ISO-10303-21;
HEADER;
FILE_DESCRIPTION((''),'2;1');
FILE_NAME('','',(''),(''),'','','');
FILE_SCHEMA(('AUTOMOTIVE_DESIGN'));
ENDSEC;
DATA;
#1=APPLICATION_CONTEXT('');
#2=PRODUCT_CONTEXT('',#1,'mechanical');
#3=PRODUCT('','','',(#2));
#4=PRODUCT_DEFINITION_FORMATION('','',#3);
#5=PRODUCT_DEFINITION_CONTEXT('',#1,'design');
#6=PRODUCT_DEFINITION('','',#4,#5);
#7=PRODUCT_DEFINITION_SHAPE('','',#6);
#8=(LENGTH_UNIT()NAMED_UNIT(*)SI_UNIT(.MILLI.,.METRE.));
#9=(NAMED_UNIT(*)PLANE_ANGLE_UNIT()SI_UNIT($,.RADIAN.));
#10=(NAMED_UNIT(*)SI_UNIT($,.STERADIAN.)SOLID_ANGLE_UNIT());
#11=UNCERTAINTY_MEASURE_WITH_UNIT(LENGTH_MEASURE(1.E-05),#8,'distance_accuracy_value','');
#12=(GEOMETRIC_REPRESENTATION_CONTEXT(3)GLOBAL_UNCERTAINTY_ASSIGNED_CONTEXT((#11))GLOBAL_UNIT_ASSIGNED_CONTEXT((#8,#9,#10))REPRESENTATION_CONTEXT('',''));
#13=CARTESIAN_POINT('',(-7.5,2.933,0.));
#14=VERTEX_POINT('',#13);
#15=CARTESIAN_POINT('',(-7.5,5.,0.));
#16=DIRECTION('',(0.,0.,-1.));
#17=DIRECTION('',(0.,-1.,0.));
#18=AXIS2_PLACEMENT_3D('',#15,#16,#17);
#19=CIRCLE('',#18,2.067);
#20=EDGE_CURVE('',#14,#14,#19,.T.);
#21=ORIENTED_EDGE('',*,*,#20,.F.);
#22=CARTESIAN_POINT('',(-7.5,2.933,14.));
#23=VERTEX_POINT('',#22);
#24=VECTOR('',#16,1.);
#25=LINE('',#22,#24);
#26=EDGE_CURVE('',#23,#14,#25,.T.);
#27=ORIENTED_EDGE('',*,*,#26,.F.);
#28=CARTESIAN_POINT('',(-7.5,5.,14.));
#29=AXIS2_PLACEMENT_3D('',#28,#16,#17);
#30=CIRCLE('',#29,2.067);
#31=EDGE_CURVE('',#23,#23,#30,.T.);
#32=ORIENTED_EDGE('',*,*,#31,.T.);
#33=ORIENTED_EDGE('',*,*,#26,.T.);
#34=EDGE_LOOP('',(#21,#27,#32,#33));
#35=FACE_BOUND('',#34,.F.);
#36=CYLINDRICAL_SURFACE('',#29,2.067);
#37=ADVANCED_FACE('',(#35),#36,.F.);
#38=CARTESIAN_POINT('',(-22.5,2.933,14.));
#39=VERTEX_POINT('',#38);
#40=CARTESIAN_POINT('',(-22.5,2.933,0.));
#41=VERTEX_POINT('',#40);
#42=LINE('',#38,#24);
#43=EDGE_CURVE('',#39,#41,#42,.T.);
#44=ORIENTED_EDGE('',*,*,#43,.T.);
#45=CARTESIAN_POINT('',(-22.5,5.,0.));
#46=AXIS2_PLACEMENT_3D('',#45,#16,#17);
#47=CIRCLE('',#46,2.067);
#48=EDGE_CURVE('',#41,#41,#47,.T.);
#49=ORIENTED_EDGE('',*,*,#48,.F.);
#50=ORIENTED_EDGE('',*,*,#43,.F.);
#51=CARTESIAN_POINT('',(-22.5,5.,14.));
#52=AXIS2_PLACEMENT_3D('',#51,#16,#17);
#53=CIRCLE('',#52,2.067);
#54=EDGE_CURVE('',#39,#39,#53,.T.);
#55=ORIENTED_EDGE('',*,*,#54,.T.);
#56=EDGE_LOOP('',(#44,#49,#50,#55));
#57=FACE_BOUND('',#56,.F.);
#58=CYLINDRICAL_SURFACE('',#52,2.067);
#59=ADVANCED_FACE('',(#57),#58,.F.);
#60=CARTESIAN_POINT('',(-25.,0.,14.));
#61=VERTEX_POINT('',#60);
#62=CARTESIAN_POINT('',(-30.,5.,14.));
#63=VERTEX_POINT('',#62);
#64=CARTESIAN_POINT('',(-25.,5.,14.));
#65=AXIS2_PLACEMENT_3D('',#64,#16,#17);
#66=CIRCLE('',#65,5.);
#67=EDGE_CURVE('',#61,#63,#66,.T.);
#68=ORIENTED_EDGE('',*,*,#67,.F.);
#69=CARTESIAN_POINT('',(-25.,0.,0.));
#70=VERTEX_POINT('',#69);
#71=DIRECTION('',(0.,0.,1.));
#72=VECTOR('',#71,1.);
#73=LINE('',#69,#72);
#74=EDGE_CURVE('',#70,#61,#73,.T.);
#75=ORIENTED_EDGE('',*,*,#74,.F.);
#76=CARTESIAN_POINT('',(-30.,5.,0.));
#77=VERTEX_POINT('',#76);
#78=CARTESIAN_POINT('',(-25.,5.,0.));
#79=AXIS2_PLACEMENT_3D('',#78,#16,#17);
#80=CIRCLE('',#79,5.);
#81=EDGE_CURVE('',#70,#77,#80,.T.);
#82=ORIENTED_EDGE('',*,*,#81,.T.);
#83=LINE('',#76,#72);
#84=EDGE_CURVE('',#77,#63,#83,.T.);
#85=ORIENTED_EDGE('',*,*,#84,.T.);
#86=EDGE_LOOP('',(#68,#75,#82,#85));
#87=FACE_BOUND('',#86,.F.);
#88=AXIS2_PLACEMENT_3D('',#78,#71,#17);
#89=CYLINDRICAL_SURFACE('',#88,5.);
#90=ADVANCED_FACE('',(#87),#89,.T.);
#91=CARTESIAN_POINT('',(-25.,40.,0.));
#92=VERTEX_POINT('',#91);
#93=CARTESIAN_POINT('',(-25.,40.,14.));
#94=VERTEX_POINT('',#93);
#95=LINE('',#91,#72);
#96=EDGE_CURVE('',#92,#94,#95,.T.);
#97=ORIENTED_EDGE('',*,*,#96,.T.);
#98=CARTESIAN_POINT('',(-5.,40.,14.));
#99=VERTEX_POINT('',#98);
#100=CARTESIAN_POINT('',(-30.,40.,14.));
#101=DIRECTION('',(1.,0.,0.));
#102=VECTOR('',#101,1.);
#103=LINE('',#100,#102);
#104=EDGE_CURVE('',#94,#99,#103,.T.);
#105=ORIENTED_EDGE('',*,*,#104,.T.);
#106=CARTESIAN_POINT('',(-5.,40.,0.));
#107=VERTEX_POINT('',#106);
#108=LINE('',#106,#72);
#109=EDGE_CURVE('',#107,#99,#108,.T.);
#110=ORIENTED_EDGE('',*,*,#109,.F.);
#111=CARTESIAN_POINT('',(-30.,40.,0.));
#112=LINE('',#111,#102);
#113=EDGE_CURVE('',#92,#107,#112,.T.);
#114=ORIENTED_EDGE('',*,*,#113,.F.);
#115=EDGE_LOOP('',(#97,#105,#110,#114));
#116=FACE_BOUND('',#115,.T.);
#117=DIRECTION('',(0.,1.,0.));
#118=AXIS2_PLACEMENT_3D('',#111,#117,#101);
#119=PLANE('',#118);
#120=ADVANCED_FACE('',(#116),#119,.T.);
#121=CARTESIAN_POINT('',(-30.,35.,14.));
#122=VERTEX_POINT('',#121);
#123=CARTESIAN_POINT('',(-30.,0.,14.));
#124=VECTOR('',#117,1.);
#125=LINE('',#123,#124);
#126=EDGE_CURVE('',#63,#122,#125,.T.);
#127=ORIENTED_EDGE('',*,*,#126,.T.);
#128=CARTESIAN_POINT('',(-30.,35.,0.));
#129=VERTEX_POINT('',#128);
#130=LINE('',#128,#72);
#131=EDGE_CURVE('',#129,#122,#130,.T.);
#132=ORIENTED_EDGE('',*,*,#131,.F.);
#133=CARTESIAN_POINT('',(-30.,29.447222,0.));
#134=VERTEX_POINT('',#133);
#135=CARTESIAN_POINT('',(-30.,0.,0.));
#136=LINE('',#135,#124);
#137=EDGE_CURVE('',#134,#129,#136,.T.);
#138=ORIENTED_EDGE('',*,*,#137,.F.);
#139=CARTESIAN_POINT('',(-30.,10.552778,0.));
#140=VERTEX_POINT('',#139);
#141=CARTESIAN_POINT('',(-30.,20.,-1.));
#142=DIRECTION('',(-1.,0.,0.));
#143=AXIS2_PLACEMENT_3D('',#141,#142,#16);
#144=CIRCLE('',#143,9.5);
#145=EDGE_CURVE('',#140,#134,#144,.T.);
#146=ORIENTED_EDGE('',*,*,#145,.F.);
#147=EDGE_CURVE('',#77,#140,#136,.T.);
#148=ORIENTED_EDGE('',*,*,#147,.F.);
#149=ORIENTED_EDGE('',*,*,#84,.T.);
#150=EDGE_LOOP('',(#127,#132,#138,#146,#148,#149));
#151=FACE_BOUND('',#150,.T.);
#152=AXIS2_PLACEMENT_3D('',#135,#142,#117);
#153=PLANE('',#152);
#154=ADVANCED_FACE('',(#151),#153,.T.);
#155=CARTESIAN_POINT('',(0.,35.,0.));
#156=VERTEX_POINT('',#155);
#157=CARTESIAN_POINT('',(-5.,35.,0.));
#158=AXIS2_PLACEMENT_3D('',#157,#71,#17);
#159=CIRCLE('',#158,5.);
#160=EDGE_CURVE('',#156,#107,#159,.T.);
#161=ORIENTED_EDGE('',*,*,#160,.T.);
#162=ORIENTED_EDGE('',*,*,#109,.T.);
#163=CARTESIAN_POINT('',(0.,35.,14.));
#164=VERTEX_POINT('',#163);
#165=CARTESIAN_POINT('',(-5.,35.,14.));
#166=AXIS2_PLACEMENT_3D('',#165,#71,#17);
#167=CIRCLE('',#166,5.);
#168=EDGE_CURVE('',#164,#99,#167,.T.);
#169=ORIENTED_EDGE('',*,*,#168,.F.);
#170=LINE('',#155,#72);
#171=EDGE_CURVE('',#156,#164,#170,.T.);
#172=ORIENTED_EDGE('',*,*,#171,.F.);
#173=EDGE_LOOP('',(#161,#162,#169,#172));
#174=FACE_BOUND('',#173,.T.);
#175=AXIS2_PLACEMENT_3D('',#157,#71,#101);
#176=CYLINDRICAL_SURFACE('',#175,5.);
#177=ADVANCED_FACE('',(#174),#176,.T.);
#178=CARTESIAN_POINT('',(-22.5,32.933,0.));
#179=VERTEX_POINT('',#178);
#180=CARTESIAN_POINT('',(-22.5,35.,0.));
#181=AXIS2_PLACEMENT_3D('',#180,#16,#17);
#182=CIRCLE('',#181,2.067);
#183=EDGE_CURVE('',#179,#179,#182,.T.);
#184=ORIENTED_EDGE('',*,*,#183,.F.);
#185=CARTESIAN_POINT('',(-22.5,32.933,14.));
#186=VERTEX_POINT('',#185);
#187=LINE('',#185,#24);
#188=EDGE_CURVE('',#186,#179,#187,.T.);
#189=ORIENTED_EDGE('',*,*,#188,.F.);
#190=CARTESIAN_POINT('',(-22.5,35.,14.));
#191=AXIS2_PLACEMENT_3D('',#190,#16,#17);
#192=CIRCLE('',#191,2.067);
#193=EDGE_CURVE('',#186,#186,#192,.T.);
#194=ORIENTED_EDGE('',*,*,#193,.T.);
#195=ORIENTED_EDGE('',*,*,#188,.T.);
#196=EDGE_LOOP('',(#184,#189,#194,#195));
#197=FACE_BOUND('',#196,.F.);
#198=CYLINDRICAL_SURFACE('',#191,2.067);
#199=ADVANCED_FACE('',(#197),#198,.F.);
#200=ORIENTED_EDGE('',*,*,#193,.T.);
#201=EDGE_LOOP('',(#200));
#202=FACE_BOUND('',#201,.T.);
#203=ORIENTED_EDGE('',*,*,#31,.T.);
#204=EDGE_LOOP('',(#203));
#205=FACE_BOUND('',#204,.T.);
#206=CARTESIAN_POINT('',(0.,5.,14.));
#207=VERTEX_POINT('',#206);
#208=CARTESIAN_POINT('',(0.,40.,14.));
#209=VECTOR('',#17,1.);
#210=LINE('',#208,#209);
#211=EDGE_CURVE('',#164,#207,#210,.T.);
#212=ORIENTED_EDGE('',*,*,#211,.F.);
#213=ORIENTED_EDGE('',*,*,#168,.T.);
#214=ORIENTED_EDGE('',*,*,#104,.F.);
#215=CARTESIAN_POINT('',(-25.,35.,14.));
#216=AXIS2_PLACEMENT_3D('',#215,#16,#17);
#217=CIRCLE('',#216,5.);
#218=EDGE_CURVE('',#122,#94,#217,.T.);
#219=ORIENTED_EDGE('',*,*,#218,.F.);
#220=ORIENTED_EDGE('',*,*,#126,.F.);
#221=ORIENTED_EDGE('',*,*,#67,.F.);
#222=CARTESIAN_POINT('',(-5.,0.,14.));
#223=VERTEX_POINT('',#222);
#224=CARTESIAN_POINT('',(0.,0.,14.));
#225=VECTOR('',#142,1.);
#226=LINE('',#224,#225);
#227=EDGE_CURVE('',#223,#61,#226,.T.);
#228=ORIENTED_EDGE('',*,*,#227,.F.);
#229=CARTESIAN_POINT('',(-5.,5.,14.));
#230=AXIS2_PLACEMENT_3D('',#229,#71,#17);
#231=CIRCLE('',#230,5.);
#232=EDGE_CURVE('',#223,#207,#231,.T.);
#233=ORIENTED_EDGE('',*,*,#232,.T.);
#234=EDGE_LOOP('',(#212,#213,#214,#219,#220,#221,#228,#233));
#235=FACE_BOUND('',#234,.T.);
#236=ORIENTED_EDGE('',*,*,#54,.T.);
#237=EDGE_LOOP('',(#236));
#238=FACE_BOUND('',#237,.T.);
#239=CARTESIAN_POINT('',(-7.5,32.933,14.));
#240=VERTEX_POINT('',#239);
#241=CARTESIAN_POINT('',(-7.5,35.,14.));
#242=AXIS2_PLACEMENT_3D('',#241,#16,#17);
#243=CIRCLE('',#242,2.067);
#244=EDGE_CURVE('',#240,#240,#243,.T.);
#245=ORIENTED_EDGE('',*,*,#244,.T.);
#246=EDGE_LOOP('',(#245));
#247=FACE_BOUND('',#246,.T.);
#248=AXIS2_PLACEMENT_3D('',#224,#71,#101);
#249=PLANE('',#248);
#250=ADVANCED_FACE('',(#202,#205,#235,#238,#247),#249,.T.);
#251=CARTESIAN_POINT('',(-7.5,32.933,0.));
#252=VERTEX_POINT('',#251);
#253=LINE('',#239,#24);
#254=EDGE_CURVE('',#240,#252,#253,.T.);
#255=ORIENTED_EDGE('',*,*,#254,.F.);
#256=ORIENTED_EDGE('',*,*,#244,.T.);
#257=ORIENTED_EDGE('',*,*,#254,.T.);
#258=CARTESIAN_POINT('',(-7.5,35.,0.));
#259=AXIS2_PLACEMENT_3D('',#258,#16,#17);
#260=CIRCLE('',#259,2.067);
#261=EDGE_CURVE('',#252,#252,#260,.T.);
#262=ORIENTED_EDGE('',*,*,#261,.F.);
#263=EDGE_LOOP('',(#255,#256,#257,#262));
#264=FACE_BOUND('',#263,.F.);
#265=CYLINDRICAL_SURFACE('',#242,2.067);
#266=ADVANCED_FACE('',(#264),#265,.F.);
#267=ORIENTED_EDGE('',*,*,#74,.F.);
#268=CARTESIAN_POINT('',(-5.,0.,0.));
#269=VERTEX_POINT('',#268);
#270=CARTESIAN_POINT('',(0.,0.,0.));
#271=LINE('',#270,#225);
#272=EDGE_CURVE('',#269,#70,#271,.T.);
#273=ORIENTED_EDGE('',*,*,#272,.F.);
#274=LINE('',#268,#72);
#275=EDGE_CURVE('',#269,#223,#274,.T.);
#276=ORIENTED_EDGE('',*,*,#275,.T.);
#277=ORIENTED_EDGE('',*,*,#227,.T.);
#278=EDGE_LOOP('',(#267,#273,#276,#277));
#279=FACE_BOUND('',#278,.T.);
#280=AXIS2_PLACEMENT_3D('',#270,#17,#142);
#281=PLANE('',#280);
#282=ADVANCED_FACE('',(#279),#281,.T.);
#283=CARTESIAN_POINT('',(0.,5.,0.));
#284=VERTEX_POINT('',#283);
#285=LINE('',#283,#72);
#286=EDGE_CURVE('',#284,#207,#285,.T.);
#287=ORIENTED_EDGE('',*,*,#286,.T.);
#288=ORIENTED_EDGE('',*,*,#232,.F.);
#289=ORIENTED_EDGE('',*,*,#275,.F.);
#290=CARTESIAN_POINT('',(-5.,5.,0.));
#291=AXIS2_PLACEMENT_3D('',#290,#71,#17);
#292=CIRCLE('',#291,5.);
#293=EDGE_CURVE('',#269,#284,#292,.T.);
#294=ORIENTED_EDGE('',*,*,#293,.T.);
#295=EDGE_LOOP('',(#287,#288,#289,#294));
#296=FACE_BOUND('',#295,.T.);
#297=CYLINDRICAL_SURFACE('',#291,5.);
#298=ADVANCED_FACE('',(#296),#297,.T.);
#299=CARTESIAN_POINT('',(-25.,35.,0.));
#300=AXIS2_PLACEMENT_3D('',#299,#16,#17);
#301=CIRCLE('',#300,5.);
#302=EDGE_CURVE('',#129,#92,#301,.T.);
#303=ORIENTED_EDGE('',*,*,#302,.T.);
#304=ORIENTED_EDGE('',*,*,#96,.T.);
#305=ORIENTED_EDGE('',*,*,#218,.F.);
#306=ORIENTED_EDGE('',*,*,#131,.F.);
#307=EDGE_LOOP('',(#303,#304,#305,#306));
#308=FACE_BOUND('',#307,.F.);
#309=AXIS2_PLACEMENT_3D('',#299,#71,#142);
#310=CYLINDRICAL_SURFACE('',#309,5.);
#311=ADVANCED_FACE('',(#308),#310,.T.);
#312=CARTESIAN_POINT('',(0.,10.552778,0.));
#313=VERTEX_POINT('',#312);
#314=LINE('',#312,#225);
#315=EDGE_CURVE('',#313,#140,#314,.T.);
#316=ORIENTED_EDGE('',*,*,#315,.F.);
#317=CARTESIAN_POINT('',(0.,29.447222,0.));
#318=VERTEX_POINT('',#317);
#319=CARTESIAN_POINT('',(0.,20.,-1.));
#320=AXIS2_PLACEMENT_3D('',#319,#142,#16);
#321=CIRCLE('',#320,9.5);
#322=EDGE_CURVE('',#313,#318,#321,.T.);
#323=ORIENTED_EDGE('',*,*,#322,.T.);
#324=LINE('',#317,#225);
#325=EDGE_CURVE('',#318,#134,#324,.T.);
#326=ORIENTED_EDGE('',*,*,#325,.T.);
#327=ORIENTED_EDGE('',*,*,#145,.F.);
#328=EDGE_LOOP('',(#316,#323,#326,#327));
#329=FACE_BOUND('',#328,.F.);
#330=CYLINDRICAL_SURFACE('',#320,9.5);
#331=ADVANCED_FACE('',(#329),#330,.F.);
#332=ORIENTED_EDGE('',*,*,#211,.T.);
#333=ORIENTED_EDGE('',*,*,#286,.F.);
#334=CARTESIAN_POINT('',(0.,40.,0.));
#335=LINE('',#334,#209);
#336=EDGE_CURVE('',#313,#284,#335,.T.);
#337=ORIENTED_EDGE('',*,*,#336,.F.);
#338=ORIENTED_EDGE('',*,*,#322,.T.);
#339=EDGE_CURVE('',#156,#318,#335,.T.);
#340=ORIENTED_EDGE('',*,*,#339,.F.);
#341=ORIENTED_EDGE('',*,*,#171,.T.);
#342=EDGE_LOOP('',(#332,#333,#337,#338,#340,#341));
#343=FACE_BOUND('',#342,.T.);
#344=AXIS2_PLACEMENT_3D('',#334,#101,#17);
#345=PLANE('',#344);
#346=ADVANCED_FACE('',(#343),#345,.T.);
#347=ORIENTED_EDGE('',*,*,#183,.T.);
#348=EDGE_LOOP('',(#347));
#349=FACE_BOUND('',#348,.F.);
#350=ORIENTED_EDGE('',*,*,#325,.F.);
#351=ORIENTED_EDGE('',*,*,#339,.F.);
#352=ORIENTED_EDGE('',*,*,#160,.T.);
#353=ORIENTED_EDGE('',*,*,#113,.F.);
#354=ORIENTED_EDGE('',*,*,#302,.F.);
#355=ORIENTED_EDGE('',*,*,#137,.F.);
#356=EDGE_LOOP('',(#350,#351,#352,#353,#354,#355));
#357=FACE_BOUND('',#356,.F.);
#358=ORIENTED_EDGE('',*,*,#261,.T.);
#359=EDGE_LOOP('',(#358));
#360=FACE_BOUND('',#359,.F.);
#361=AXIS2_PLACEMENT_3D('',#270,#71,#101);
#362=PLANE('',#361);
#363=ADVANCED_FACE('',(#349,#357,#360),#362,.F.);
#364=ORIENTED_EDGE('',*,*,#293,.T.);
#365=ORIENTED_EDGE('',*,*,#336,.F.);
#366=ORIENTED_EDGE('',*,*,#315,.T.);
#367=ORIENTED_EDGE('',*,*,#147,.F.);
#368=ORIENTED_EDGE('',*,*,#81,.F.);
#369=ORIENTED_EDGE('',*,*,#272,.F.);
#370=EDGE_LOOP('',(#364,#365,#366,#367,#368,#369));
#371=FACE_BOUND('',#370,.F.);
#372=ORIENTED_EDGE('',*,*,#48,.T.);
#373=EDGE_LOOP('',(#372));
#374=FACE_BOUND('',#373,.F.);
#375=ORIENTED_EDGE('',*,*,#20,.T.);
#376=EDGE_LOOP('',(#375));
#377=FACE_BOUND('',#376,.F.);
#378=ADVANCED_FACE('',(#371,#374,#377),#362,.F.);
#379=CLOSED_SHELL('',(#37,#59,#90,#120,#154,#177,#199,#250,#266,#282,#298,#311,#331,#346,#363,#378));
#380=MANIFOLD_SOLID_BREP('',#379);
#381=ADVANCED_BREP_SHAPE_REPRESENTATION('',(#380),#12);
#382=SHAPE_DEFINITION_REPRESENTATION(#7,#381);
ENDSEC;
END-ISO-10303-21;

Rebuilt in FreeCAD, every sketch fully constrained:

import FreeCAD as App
import Part
import Sketcher
from FreeCAD import Vector


def edges_at(feature, points):
    """Names of the edges that pass closest to the given points."""
    edges = feature.Shape.Edges
    near = lambda p: min(range(len(edges)), key=lambda i: edges[i].distToShape(Part.Vertex(*p))[0])
    return sorted({f"Edge{near(p) + 1}" for p in points})

doc = App.newDocument("Part")
body = doc.addObject("PartDesign::Body", "Body")

sketch1 = body.newObject("Sketcher::SketchObject", "Sketch")
sketch1.AttachmentSupport = (doc.getObject("XY_Plane"), [""])
sketch1.MapMode = "FlatFace"
sketch1.addGeometry([
    Part.LineSegment(Vector(-30, 0, 0), Vector(0, 0, 0)),
    Part.LineSegment(Vector(0, 0, 0), Vector(0, 40, 0)),
    Part.LineSegment(Vector(0, 40, 0), Vector(-30, 40, 0)),
    Part.LineSegment(Vector(-30, 40, 0), Vector(-30, 0, 0)),
], False)
sketch1.addConstraint([
    Sketcher.Constraint("Coincident", 0, 2, 1, 1),
    Sketcher.Constraint("Coincident", 1, 2, 2, 1),
    Sketcher.Constraint("Coincident", 2, 2, 3, 1),
    Sketcher.Constraint("Coincident", 3, 2, 0, 1),
    Sketcher.Constraint("Horizontal", 0),
    Sketcher.Constraint("Vertical", 1),
    Sketcher.Constraint("Horizontal", 2),
    Sketcher.Constraint("Vertical", 3),
    Sketcher.Constraint("Coincident", 0, 2, -1, 1),
    Sketcher.Constraint("DistanceX", 0, 1, 0, 2, 30.0),
    Sketcher.Constraint("DistanceY", 1, 1, 1, 2, 40.0),
])
pad1 = body.newObject("PartDesign::Pad", "Pad")
pad1.Profile = sketch1
pad1.Length = 14

sketch2 = body.newObject("Sketcher::SketchObject", "Sketch001")
sketch2.AttachmentSupport = (doc.getObject("XY_Plane"), [""])
sketch2.MapMode = "FlatFace"
sketch2.AttachmentOffset = App.Placement(Vector(0, 0, 14), App.Rotation())
sketch2.addGeometry(Part.Circle(Vector(-22.5, 35, 0), Vector(0, 0, 1), 2.067), False)
sketch2.addConstraint([
    Sketcher.Constraint("Diameter", 0, 4.134),
    Sketcher.Constraint("DistanceY", -1, 1, 0, 3, 35.0),
    Sketcher.Constraint("DistanceX", 0, 3, -1, 1, 22.5),
])
doc.recompute()
hole = body.newObject("PartDesign::Hole", "Hole")
hole.Profile = sketch2
hole.ThreadType = "None"
hole.Diameter = 4.134
hole.DepthType = "Dimension"
hole.Depth = 14.2
hole.DrillPoint = "Angled"
hole.DrillPointAngle = 118

sketch3 = body.newObject("Sketcher::SketchObject", "Sketch002")
sketch3.AttachmentSupport = (doc.getObject("XY_Plane"), [""])
sketch3.MapMode = "FlatFace"
sketch3.AttachmentOffset = App.Placement(Vector(0, 0, 14), App.Rotation())
sketch3.addGeometry(Part.Circle(Vector(-7.5, 35, 0), Vector(0, 0, 1), 2.067), False)
sketch3.addConstraint([
    Sketcher.Constraint("Diameter", 0, 4.134),
    Sketcher.Constraint("DistanceY", -1, 1, 0, 3, 35.0),
    Sketcher.Constraint("DistanceX", 0, 3, -1, 1, 7.5),
])
doc.recompute()
hole2 = body.newObject("PartDesign::Hole", "Hole001")
hole2.Profile = sketch3
hole2.ThreadType = "None"
hole2.Diameter = 4.134
hole2.DepthType = "Dimension"
hole2.Depth = 14.2
hole2.DrillPoint = "Angled"
hole2.DrillPointAngle = 118

sketch4 = body.newObject("Sketcher::SketchObject", "Sketch003")
sketch4.AttachmentSupport = (doc.getObject("XY_Plane"), [""])
sketch4.MapMode = "FlatFace"
sketch4.AttachmentOffset = App.Placement(Vector(0, 0, 14), App.Rotation())
sketch4.addGeometry(Part.Circle(Vector(-7.5, 5, 0), Vector(0, 0, 1), 2.067), False)
sketch4.addConstraint([
    Sketcher.Constraint("Diameter", 0, 4.134),
    Sketcher.Constraint("DistanceY", -1, 1, 0, 3, 5.0),
    Sketcher.Constraint("DistanceX", 0, 3, -1, 1, 7.5),
])
doc.recompute()
hole3 = body.newObject("PartDesign::Hole", "Hole002")
hole3.Profile = sketch4
hole3.ThreadType = "None"
hole3.Diameter = 4.134
hole3.DepthType = "Dimension"
hole3.Depth = 14.2
hole3.DrillPoint = "Angled"
hole3.DrillPointAngle = 118

sketch5 = body.newObject("Sketcher::SketchObject", "Sketch004")
sketch5.AttachmentSupport = (doc.getObject("XY_Plane"), [""])
sketch5.MapMode = "FlatFace"
sketch5.AttachmentOffset = App.Placement(Vector(0, 0, 14), App.Rotation())
sketch5.addGeometry(Part.Circle(Vector(-22.5, 5, 0), Vector(0, 0, 1), 2.067), False)
sketch5.addConstraint([
    Sketcher.Constraint("Diameter", 0, 4.134),
    Sketcher.Constraint("DistanceY", -1, 1, 0, 3, 5.0),
    Sketcher.Constraint("DistanceX", 0, 3, -1, 1, 22.5),
])
doc.recompute()
hole4 = body.newObject("PartDesign::Hole", "Hole003")
hole4.Profile = sketch5
hole4.ThreadType = "None"
hole4.Diameter = 4.134
hole4.DepthType = "Dimension"
hole4.Depth = 14.2
hole4.DrillPoint = "Angled"
hole4.DrillPointAngle = 118

sketch6 = body.newObject("Sketcher::SketchObject", "Sketch005")
sketch6.AttachmentSupport = (doc.getObject("YZ_Plane"), [""])
sketch6.MapMode = "FlatFace"
sketch6.addGeometry(Part.Circle(Vector(20, -1, 0), Vector(0, 0, 1), 9.5), False)
sketch6.addConstraint([
    Sketcher.Constraint("Diameter", 0, 19.0),
    Sketcher.Constraint("DistanceX", -1, 1, 0, 3, 20.0),
    Sketcher.Constraint("DistanceY", 0, 3, -1, 1, 1.0),
])
doc.recompute()
hole5 = body.newObject("PartDesign::Hole", "Hole004")
hole5.Profile = sketch6
hole5.ThreadType = "None"
hole5.Diameter = 19
hole5.DepthType = "ThroughAll"
doc.recompute()

fillet = body.newObject("PartDesign::Fillet", "Fillet")
fillet.Base = (hole5, edges_at(hole5, [
    (-30, 40, 7),
    (0, 40, 7),
    (0, 0, 7),
    (-30, 0, 7),
]))
fillet.Radius = 5

doc.recompute()
